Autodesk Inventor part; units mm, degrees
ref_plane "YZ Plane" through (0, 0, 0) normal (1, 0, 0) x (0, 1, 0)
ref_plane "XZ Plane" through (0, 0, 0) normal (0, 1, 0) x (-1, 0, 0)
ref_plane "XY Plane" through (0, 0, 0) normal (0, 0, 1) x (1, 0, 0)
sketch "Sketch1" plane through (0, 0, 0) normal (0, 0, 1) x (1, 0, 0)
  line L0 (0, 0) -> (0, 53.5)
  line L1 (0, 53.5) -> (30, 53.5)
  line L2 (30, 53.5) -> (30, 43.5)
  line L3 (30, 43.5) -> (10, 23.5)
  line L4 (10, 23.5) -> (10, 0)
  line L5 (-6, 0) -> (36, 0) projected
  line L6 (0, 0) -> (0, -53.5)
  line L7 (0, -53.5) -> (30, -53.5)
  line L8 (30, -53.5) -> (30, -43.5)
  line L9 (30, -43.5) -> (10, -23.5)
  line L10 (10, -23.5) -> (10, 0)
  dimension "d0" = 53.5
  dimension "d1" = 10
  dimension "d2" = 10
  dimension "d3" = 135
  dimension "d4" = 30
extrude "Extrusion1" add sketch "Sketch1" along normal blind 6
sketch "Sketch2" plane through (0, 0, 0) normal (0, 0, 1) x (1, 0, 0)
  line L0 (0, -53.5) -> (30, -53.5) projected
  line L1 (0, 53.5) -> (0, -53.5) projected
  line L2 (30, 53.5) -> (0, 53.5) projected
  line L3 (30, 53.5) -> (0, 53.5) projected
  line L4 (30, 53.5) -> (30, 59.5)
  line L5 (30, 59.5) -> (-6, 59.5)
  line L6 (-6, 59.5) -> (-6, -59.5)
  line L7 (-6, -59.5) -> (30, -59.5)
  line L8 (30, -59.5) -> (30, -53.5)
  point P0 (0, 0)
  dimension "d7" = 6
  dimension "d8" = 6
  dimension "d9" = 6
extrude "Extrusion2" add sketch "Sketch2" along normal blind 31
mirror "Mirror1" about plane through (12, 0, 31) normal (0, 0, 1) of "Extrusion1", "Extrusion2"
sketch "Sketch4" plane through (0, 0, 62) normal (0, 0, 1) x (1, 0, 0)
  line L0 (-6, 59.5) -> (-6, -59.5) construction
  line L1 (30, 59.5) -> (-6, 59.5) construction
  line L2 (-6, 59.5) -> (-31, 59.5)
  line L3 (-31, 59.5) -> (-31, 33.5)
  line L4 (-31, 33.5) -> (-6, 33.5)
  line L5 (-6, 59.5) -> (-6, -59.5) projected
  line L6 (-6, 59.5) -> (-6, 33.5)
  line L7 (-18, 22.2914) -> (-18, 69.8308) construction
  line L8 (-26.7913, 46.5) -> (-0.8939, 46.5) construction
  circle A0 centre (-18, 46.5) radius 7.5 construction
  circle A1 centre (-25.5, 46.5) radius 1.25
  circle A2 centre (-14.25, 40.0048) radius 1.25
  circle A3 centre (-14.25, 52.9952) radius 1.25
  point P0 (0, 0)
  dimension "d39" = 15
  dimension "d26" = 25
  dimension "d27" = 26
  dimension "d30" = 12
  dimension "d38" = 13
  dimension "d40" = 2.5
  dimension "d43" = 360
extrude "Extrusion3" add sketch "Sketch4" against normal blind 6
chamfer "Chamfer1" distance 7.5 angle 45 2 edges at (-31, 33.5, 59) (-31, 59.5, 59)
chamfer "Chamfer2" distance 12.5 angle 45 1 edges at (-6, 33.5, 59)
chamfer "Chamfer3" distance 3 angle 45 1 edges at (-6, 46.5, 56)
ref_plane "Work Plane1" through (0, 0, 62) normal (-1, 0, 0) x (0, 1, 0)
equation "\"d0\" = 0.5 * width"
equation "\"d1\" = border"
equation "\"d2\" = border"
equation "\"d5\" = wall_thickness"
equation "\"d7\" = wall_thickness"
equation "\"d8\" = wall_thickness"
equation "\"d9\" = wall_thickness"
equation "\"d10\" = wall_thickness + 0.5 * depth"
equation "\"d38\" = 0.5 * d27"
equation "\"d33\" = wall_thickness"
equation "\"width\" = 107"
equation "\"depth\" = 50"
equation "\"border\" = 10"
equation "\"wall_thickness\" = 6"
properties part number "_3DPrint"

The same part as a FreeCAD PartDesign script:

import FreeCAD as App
import Part
import Sketcher
from FreeCAD import Vector


def edges_at(feature, points):
    """Names of the edges that pass closest to the given points."""
    edges = feature.Shape.Edges
    near = lambda p: min(range(len(edges)), key=lambda i: edges[i].distToShape(Part.Vertex(*p))[0])
    return sorted({f"Edge{near(p) + 1}" for p in points})

doc = App.newDocument("Part")
body = doc.addObject("PartDesign::Body", "Body")

# Sketch on XY plane
sketch1 = doc.addObject("Sketcher::SketchObject", "Sketch")
body.addObject(sketch1)
sketch1.AttachmentSupport = (doc.XY_Plane, [""])
sketch1.MapMode = "FlatFace"
sketch1.addGeometry([
    Part.LineSegment(Vector(0, 53.5, 0), Vector(0, -53.5, 0)),  # 0
    Part.LineSegment(Vector(0, -53.5, 0), Vector(30, -53.5, 0)),  # 1
    Part.LineSegment(Vector(30, -53.5, 0), Vector(30, -43.5, 0)),  # 2
    Part.LineSegment(Vector(30, -43.5, 0), Vector(10, -23.5, 0)),  # 3
    Part.LineSegment(Vector(10, -23.5, 0), Vector(10, 23.5, 0)),  # 4
    Part.LineSegment(Vector(10, 23.5, 0), Vector(30, 43.5, 0)),  # 5
    Part.LineSegment(Vector(30, 43.5, 0), Vector(30, 53.5, 0)),  # 6
    Part.LineSegment(Vector(30, 53.5, 0), Vector(0, 53.5, 0)),  # 7
], False)
sketch1.addConstraint([
    Sketcher.Constraint("Coincident", 0, 2, 1, 1),
    Sketcher.Constraint("Coincident", 1, 2, 2, 1),
    Sketcher.Constraint("Coincident", 2, 2, 3, 1),
    Sketcher.Constraint("Coincident", 3, 2, 4, 1),
    Sketcher.Constraint("Coincident", 4, 2, 5, 1),
    Sketcher.Constraint("Coincident", 5, 2, 6, 1),
    Sketcher.Constraint("Coincident", 6, 2, 7, 1),
    Sketcher.Constraint("Coincident", 7, 2, 0, 1),
    Sketcher.Constraint("Vertical", 0),
    Sketcher.Constraint("Horizontal", 1),
    Sketcher.Constraint("Vertical", 2),
    Sketcher.Constraint("Vertical", 4),
    Sketcher.Constraint("Vertical", 6),
    Sketcher.Constraint("Horizontal", 7),
    Sketcher.Constraint("Symmetric", 0, 2, 7, 2, -1, 1),
    Sketcher.Constraint("Symmetric", 2, 2, 5, 2, -1),
    Sketcher.Constraint("Perpendicular", 3, 5),
    Sketcher.Constraint("Equal", 3, 5),
    Sketcher.Constraint("DistanceX", 1, 1, 1, 2, 30.0),
    Sketcher.Constraint("DistanceY", 2, 1, 2, 2, 10.0),
    Sketcher.Constraint("DistanceX", -1, 1, 3, 2, 10.0),
    Sketcher.Constraint("DistanceY", 0, 2, -1, 1, 53.5),
])
pad1 = doc.addObject("PartDesign::Pad", "Pad")
body.addObject(pad1)
pad1.Profile = sketch1
pad1.Length = 6

# Sketch on XY plane
sketch2 = doc.addObject("Sketcher::SketchObject", "Sketch001")
body.addObject(sketch2)
sketch2.AttachmentSupport = (doc.XY_Plane, [""])
sketch2.MapMode = "FlatFace"
sketch2.addGeometry([
    Part.LineSegment(Vector(30, -53.5, 0), Vector(0, -53.5, 0)),  # 0
    Part.LineSegment(Vector(0, -53.5, 0), Vector(0, 53.5, 0)),  # 1
    Part.LineSegment(Vector(0, 53.5, 0), Vector(30, 53.5, 0)),  # 2
    Part.LineSegment(Vector(30, 53.5, 0), Vector(30, 59.5, 0)),  # 3
    Part.LineSegment(Vector(30, 59.5, 0), Vector(-6, 59.5, 0)),  # 4
    Part.LineSegment(Vector(-6, 59.5, 0), Vector(-6, -59.5, 0)),  # 5
    Part.LineSegment(Vector(-6, -59.5, 0), Vector(30, -59.5, 0)),  # 6
    Part.LineSegment(Vector(30, -59.5, 0), Vector(30, -53.5, 0)),  # 7
], False)
sketch2.addConstraint([
    Sketcher.Constraint("Coincident", 0, 2, 1, 1),
    Sketcher.Constraint("Coincident", 1, 2, 2, 1),
    Sketcher.Constraint("Coincident", 2, 2, 3, 1),
    Sketcher.Constraint("Coincident", 3, 2, 4, 1),
    Sketcher.Constraint("Coincident", 4, 2, 5, 1),
    Sketcher.Constraint("Coincident", 5, 2, 6, 1),
    Sketcher.Constraint("Coincident", 6, 2, 7, 1),
    Sketcher.Constraint("Coincident", 7, 2, 0, 1),
    Sketcher.Constraint("Horizontal", 0),
    Sketcher.Constraint("Vertical", 1),
    Sketcher.Constraint("Horizontal", 2),
    Sketcher.Constraint("Vertical", 3),
    Sketcher.Constraint("Horizontal", 4),
    Sketcher.Constraint("Vertical", 5),
    Sketcher.Constraint("Horizontal", 6),
    Sketcher.Constraint("Vertical", 7),
    Sketcher.Constraint("Symmetric", 0, 2, 1, 2, -1, 1),
    Sketcher.Constraint("Symmetric", 3, 2, 6, 2, -1),
    Sketcher.Constraint("DistanceY", 3, 1, 3, 2, 6.0),
    Sketcher.Constraint("DistanceX", 4, 2, -1, 1, 6.0),
    Sketcher.Constraint("DistanceX", 0, 2, 0, 1, 30.0),
    Sketcher.Constraint("DistanceY", 1, 1, 1, 2, 107.0),
])
pad2 = doc.addObject("PartDesign::Pad", "Pad001")
body.addObject(pad2)
pad2.Profile = sketch2
pad2.Length = 31
doc.recompute()

datumplane = doc.addObject("PartDesign::Plane", "DatumPlane")
body.addObject(datumplane)
datumplane.AttachmentSupport = (doc.XY_Plane, [""])
datumplane.MapMode = "FlatFace"
datumplane.AttachmentOffset = App.Placement(Vector(0, 0, 31), App.Rotation())
mirrored = doc.addObject("PartDesign::Mirrored", "Mirrored")
body.addObject(mirrored)
mirrored.Originals = [pad1, pad2]
mirrored.MirrorPlane = (datumplane, [""])
body.Tip = mirrored

# Sketch on XY plane
sketch3 = doc.addObject("Sketcher::SketchObject", "Sketch002")
body.addObject(sketch3)
sketch3.AttachmentSupport = (doc.XY_Plane, [""])
sketch3.MapMode = "FlatFace"
sketch3.AttachmentOffset = App.Placement(Vector(0, 0, 62), App.Rotation())
sketch3.addGeometry([
    Part.LineSegment(Vector(-6, 33.5, 0), Vector(-6, 59.5, 0)),  # 0
    Part.LineSegment(Vector(-6, 59.5, 0), Vector(-31, 59.5, 0)),  # 1
    Part.LineSegment(Vector(-31, 59.5, 0), Vector(-31, 33.5, 0)),  # 2
    Part.LineSegment(Vector(-31, 33.5, 0), Vector(-6, 33.5, 0)),  # 3
    Part.Circle(Vector(-14.25, 40.0048, 0), Vector(0, 0, 1), 1.25),  # 4
    Part.Circle(Vector(-25.5, 46.5, 0), Vector(0, 0, 1), 1.25),  # 5
    Part.Circle(Vector(-14.25, 52.9952, 0), Vector(0, 0, 1), 1.25),  # 6
], False)
sketch3.addConstraint([
    Sketcher.Constraint("Coincident", 0, 2, 1, 1),
    Sketcher.Constraint("Coincident", 1, 2, 2, 1),
    Sketcher.Constraint("Coincident", 2, 2, 3, 1),
    Sketcher.Constraint("Coincident", 3, 2, 0, 1),
    Sketcher.Constraint("Vertical", 0),
    Sketcher.Constraint("Horizontal", 1),
    Sketcher.Constraint("Vertical", 2),
    Sketcher.Constraint("Horizontal", 3),
    Sketcher.Constraint("Equal", 4, 5),
    Sketcher.Constraint("Equal", 5, 6),
    Sketcher.Constraint("Vertical", 4, 3, 6, 3),
    Sketcher.Constraint("Diameter", 4, 2.5),
    Sketcher.Constraint("DistanceX", 1, 2, 1, 1, 25.0),
    Sketcher.Constraint("DistanceY", 0, 1, 0, 2, 26.0),
    Sketcher.Constraint("DistanceY", 5, 3, 0, 2, 13.0),
    Sketcher.Constraint("DistanceX", 0, 2, -1, 1, 6.0),
    Sketcher.Constraint("DistanceX", 5, 3, -1, 1, 25.5),
    Sketcher.Constraint("DistanceY", -1, 1, 5, 3, 46.5),
    Sketcher.Constraint("DistanceX", 4, 3, -1, 1, 14.25),
    Sketcher.Constraint("DistanceY", -1, 1, 4, 3, 40.0048),
    Sketcher.Constraint("DistanceY", -1, 1, 6, 3, 52.9952),
])
pad3 = doc.addObject("PartDesign::Pad", "Pad002")
body.addObject(pad3)
pad3.Profile = sketch3
pad3.Length = 6
pad3.Reversed = True
doc.recompute()

chamfer = doc.addObject("PartDesign::Chamfer", "Chamfer")
body.addObject(chamfer)
chamfer.Base = (pad3, edges_at(pad3, [(-31, 33.5, 59), (-31, 59.5, 59)]))
chamfer.Size = 7.5
doc.recompute()

chamfer2 = doc.addObject("PartDesign::Chamfer", "Chamfer001")
body.addObject(chamfer2)
chamfer2.Base = (chamfer, edges_at(chamfer, [(-6, 33.5, 59)]))
chamfer2.Size = 12.5
doc.recompute()

chamfer3 = doc.addObject("PartDesign::Chamfer", "Chamfer002")
body.addObject(chamfer3)
chamfer3.Base = (chamfer2, edges_at(chamfer2, [(-6, 46.5, 56)]))
chamfer3.Size = 3

doc.recompute()
